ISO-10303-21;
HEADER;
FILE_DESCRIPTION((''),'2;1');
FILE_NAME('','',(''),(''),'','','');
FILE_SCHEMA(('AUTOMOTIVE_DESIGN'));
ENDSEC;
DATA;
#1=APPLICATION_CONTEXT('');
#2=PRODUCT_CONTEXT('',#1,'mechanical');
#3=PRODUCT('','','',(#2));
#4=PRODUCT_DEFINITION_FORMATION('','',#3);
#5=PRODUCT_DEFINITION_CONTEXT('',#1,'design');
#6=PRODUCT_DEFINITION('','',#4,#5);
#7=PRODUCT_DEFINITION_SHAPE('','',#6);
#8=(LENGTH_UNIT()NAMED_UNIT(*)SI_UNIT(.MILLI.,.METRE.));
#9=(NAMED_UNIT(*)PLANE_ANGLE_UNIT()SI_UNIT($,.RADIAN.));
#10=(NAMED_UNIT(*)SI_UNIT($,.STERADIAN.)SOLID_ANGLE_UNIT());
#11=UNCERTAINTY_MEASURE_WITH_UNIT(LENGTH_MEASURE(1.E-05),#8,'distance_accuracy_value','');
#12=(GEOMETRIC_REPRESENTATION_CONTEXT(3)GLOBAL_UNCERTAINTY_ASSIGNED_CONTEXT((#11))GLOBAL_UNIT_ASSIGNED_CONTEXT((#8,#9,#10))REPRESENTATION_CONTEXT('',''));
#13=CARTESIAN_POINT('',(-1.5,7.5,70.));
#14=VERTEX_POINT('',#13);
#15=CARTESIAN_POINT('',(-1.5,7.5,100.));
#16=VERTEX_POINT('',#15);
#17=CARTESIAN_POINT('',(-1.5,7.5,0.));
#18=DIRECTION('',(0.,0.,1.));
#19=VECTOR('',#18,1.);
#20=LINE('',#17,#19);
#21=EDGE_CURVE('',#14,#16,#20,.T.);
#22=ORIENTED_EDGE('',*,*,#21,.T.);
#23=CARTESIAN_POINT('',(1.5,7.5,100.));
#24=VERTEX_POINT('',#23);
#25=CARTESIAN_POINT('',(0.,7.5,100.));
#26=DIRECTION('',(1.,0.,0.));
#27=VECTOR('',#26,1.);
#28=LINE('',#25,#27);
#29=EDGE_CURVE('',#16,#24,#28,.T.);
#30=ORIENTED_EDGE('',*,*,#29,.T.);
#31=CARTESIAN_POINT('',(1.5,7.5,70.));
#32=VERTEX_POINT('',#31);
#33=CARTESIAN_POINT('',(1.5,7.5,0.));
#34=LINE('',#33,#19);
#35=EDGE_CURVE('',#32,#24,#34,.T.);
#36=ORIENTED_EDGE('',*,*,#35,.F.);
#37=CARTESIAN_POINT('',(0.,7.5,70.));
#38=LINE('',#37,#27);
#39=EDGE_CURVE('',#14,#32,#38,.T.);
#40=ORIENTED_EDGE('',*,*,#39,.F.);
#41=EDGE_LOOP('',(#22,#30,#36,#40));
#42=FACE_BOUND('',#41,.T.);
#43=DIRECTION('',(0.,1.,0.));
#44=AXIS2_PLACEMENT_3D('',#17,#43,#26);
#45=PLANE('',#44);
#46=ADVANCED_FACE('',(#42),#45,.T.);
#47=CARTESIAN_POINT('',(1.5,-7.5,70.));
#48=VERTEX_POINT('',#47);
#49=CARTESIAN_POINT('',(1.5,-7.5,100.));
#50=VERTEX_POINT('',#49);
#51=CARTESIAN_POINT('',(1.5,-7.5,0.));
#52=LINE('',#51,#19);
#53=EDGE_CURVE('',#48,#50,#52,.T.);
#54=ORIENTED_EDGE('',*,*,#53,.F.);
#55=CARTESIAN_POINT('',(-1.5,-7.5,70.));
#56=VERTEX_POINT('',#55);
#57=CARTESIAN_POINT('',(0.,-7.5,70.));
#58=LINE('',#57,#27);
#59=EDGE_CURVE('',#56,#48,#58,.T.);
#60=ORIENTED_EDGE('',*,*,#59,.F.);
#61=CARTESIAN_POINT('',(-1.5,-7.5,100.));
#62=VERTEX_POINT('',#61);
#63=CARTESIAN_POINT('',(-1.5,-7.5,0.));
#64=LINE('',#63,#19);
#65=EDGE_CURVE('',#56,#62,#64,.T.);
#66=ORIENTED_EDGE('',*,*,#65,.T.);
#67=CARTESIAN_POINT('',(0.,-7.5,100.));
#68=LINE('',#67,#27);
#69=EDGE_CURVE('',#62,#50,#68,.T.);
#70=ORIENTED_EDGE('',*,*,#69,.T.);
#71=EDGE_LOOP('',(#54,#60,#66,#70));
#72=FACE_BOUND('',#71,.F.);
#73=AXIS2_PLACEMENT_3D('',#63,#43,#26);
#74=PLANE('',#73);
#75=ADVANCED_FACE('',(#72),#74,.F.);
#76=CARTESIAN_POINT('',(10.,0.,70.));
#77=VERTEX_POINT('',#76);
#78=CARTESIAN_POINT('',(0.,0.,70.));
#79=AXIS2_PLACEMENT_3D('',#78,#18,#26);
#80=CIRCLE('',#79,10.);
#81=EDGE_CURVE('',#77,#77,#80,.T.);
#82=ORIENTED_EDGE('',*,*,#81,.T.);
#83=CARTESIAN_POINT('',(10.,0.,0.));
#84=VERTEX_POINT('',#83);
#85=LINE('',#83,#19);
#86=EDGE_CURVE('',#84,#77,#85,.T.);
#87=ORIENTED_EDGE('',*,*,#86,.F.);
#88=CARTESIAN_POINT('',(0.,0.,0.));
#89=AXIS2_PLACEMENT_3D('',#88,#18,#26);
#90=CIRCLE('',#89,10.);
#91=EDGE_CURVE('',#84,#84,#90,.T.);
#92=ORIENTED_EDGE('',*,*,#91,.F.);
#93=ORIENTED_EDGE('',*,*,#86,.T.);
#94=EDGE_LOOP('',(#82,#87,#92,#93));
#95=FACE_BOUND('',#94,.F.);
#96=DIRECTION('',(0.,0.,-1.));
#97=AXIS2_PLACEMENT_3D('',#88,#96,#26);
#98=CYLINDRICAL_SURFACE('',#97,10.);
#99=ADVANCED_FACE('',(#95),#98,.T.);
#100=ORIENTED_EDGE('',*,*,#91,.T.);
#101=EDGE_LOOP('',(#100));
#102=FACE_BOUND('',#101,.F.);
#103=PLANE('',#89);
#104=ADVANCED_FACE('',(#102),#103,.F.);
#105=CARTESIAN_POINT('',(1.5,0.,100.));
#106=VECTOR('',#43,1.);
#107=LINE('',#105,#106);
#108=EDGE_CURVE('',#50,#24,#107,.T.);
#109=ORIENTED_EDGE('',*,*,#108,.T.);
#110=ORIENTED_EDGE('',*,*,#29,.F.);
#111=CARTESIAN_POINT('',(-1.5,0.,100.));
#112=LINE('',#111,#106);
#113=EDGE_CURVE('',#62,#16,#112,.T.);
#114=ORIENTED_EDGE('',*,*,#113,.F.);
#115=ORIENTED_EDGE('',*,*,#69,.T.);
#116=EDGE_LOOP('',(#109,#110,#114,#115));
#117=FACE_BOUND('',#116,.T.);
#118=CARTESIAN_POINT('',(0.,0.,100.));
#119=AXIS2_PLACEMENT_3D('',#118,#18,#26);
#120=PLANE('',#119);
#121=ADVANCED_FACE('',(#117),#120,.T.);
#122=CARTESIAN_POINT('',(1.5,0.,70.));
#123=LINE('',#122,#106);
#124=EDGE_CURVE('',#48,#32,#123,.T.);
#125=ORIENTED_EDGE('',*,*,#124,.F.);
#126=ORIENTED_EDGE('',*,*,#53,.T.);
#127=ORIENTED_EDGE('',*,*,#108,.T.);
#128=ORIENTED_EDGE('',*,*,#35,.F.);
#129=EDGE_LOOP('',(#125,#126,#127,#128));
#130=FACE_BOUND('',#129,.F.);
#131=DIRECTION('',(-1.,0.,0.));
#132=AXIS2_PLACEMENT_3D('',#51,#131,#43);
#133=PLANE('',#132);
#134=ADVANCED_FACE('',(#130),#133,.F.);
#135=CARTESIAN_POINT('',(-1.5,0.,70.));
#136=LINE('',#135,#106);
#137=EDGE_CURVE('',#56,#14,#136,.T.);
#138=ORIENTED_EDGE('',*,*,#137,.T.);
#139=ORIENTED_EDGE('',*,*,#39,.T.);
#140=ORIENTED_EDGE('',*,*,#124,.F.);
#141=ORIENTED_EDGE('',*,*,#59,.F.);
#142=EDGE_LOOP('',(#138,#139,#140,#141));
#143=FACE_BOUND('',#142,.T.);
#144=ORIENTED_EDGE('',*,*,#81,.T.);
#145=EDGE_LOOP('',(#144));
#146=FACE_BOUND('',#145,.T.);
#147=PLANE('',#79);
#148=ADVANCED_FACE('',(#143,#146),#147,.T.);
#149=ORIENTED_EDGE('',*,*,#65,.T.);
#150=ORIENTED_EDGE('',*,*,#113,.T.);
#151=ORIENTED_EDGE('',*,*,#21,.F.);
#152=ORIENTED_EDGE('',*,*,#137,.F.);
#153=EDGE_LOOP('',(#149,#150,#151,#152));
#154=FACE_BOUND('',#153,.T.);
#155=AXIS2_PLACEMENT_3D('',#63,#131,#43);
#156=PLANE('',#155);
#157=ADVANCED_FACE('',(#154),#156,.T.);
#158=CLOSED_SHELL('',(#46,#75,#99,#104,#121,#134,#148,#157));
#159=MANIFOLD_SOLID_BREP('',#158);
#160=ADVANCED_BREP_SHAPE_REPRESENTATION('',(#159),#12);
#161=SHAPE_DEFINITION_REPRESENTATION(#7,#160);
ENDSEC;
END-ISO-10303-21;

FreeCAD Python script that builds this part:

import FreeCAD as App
import Part
import Sketcher
Q = App.Units.Quantity


def add_polygon(sketch, points):
    """Adds a closed chain of lines whose ends are joined by coincident constraints."""
    first, n = sketch.GeometryCount, len(points)
    for a, b in zip(points, points[1:] + points[:1]):
        sketch.addGeometry(Part.LineSegment(App.Vector(*a, 0), App.Vector(*b, 0)), False)
    for i in range(n):
        sketch.addConstraint(Sketcher.Constraint("Coincident", first + i, 2, first + (i + 1) % n, 1))

doc = App.newDocument("Part")
body = doc.addObject("PartDesign::Body", "Body")

sketch1 = doc.addObject("Sketcher::SketchObject", "Sketch")
body.addObject(sketch1)
sketch1.AttachmentSupport = (doc.XY_Plane, [""])
sketch1.MapMode = "FlatFace"
add_polygon(sketch1, [(-1.5, 7.5), (-1.5, -7.5), (1.5, -7.5), (1.5, 7.5)])
sketch1.addConstraint([
    Sketcher.Constraint("Vertical", 0),
    Sketcher.Constraint("Horizontal", 1),
    Sketcher.Constraint("Vertical", 2),
    Sketcher.Constraint("Horizontal", 3),
    Sketcher.Constraint("Symmetric", 0, 2, 2, 2, -1, 1),
    Sketcher.Constraint("DistanceX", 1, 1, 1, 2, Q("3 mm")),
    Sketcher.Constraint("DistanceY", 0, 2, 0, 1, Q("15 mm")),
])
pad1 = doc.addObject("PartDesign::Pad", "Pad")
body.addObject(pad1)
pad1.Profile = sketch1
pad1.Length = 100

sketch2 = doc.addObject("Sketcher::SketchObject", "Sketch001")
body.addObject(sketch2)
sketch2.AttachmentSupport = (doc.XY_Plane, [""])
sketch2.MapMode = "FlatFace"
sketch2.addGeometry(Part.Circle(App.Vector(0, 0, 0), App.Vector(0, 0, 1), 10), False)
add_polygon(sketch2, [(1.5, -7.5), (-1.5, -7.5), (-1.5, 7.5), (1.5, 7.5)])
sketch2.addConstraint([
    Sketcher.Constraint("Horizontal", 1),
    Sketcher.Constraint("Vertical", 2),
    Sketcher.Constraint("Horizontal", 3),
    Sketcher.Constraint("Vertical", 4),
    Sketcher.Constraint("Coincident", 0, 3, -1, 1),
    Sketcher.Constraint("Symmetric", 1, 2, 3, 2, -1, 1),
    Sketcher.Constraint("Diameter", 0, Q("20 mm")),
    Sketcher.Constraint("DistanceX", 1, 2, 1, 1, Q("3 mm")),
    Sketcher.Constraint("DistanceY", 2, 1, 2, 2, Q("15 mm")),
])
pad2 = doc.addObject("PartDesign::Pad", "Pad001")
body.addObject(pad2)
pad2.Profile = sketch2
pad2.Length = 70

doc.recompute()
